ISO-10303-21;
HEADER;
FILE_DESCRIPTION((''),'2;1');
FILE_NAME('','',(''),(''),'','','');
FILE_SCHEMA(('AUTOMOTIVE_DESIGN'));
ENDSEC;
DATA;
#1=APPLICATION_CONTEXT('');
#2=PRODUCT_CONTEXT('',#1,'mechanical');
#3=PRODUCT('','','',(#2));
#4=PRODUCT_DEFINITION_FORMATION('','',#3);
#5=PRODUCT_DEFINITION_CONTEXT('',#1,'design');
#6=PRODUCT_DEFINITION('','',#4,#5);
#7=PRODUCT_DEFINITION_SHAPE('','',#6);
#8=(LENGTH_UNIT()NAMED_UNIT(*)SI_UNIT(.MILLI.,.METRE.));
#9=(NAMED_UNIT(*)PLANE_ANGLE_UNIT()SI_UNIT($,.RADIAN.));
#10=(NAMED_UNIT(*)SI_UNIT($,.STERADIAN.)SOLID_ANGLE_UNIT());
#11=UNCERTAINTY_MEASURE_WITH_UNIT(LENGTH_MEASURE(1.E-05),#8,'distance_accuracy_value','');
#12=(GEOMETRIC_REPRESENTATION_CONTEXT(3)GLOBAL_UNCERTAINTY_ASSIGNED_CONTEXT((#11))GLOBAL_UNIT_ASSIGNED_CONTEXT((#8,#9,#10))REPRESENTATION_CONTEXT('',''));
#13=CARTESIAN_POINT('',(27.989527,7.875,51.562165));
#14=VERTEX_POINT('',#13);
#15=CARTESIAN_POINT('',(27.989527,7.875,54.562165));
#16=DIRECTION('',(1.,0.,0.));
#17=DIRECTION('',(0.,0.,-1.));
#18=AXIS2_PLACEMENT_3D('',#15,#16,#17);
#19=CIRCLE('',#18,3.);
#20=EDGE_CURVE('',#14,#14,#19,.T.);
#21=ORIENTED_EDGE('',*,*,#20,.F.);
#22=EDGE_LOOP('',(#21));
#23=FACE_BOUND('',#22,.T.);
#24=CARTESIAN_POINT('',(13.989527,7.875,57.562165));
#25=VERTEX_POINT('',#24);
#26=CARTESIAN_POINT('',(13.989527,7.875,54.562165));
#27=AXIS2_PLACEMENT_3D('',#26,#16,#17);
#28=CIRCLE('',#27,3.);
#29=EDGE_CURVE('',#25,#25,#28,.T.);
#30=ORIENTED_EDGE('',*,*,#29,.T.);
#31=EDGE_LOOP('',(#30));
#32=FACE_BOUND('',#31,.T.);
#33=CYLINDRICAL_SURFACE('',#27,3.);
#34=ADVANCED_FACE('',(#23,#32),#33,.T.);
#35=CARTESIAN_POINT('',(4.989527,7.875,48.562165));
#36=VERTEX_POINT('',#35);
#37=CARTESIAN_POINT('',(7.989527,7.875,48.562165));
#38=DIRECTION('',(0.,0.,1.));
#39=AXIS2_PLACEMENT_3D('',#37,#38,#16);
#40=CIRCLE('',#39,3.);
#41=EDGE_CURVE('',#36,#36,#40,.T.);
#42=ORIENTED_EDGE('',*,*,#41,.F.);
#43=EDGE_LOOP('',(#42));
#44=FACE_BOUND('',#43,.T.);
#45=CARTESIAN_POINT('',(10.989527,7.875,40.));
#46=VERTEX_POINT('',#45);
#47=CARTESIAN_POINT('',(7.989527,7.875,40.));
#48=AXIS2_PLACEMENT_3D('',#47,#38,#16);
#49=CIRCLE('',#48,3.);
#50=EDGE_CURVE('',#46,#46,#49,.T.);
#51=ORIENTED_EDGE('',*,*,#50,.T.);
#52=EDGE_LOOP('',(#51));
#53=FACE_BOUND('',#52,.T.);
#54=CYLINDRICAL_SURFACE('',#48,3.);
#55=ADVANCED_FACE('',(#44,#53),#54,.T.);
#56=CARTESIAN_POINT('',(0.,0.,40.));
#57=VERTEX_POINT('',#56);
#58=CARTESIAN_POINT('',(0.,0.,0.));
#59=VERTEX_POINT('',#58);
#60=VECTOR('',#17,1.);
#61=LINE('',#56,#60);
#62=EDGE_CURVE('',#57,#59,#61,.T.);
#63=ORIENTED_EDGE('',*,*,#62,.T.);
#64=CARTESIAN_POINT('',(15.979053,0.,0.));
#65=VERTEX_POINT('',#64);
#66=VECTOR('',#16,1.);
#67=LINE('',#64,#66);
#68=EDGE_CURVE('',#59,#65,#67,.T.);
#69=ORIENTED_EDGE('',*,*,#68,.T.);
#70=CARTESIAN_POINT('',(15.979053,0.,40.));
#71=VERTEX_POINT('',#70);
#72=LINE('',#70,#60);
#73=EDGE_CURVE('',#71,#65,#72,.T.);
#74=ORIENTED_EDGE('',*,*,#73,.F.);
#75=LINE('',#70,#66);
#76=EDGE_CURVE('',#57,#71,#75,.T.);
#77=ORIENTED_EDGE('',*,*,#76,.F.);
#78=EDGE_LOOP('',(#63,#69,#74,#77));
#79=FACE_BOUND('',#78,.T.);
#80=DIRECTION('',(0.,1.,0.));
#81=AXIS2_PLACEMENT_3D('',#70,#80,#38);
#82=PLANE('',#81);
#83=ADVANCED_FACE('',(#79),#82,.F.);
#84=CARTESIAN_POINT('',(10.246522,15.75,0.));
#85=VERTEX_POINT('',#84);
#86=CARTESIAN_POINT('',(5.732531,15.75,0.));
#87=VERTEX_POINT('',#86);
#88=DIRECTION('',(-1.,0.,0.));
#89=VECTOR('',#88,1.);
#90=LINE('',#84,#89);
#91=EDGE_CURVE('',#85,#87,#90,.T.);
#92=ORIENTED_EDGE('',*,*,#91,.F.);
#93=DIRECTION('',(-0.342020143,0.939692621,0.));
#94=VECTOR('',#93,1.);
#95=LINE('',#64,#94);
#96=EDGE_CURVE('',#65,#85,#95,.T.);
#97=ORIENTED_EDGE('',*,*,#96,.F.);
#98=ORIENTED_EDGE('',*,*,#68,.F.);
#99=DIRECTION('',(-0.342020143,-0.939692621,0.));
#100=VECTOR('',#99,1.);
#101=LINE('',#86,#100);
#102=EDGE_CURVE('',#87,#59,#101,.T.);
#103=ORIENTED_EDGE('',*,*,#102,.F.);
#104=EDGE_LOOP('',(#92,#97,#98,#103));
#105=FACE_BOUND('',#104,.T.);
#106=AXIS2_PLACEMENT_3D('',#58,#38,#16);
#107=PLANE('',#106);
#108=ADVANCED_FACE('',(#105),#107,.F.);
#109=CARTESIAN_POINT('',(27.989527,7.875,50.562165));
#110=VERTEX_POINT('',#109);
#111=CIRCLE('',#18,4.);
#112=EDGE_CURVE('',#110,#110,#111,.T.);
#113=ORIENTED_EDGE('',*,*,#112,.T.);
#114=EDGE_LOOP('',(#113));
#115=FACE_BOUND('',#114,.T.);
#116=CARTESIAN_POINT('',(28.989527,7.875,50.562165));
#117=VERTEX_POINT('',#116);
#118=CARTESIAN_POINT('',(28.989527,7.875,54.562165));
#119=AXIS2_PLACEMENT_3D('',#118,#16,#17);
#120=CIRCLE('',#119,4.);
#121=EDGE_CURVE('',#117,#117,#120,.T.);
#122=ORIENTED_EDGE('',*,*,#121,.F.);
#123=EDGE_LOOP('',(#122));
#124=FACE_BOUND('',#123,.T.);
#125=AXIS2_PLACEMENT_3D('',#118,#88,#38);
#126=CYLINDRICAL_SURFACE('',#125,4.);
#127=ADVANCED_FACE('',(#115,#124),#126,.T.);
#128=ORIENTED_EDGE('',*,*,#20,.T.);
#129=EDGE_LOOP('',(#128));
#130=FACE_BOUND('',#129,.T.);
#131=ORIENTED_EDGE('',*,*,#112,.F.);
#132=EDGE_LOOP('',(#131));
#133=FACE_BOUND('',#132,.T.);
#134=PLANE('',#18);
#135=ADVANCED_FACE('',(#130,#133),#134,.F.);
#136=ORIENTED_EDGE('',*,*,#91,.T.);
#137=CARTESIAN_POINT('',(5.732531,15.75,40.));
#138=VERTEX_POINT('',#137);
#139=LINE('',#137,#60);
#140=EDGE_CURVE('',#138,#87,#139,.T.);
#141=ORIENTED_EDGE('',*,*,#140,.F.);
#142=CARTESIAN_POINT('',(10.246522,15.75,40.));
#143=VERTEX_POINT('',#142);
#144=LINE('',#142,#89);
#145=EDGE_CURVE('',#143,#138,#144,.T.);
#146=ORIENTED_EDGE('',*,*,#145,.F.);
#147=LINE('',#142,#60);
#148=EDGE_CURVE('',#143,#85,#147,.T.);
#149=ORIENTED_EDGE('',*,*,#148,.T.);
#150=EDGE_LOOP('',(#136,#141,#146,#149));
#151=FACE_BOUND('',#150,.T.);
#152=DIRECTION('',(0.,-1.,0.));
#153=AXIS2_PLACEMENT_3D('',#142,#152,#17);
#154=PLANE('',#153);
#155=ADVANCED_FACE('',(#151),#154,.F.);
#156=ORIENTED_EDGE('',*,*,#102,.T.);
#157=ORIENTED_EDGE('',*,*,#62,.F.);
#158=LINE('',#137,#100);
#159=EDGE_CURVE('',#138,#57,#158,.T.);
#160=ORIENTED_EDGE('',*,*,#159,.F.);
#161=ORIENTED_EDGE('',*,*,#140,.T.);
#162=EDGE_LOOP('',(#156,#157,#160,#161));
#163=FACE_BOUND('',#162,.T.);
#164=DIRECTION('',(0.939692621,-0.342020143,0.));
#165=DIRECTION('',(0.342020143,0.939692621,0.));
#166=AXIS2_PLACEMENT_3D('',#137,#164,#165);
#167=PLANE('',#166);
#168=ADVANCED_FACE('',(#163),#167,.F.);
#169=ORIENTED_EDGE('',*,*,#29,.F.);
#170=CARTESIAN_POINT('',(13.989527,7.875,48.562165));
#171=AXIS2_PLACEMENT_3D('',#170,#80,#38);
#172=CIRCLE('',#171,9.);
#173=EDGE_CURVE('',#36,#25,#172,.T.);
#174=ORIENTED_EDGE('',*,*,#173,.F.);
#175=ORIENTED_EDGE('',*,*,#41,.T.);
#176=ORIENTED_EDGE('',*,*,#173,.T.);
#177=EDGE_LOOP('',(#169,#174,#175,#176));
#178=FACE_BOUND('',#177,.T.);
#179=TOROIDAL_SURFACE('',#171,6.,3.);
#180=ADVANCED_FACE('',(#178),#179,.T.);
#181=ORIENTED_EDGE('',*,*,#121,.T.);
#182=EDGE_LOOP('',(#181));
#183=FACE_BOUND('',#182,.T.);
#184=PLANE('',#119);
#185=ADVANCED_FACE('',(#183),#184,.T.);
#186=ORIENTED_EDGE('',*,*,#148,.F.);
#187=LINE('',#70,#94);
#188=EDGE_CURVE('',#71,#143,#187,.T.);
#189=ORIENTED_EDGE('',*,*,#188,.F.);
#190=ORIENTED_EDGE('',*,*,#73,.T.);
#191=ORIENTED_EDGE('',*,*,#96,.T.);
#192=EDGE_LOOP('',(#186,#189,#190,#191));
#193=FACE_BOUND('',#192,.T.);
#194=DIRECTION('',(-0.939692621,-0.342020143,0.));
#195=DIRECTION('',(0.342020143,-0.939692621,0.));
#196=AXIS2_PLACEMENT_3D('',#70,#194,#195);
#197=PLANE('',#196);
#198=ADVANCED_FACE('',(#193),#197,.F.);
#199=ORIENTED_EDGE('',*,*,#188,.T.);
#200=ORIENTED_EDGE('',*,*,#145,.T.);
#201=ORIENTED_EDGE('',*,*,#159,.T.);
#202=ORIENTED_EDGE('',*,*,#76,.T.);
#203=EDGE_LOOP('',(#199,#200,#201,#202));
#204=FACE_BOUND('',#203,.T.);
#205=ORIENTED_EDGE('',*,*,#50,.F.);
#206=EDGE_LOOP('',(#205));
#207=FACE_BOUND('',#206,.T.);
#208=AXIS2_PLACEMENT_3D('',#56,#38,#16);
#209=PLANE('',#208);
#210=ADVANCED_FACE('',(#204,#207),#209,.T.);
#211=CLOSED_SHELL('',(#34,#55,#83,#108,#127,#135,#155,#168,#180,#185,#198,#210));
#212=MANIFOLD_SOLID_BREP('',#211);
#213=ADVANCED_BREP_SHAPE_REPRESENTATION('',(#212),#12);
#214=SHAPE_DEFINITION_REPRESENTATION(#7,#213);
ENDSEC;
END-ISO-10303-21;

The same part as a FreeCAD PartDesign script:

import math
import FreeCAD as App
import Part
import Sketcher

V = App.Vector
Q = App.Units.Quantity


def add_polygon(sketch, points):
    """Adds a closed chain of lines whose ends are joined by coincident constraints."""
    first, n = sketch.GeometryCount, len(points)
    for a, b in zip(points, points[1:] + points[:1]):
        sketch.addGeometry(Part.LineSegment(App.Vector(*a, 0), App.Vector(*b, 0)), False)
    for i in range(n):
        sketch.addConstraint(Sketcher.Constraint("Coincident", first + i, 2, first + (i + 1) % n, 1))

doc = App.newDocument("Part")
body = doc.addObject("PartDesign::Body", "Body")

# Sketch on XY plane
sketch1 = body.newObject("Sketcher::SketchObject", "Sketch")
sketch1.AttachmentSupport = (doc.getObject("XY_Plane"), [""])
sketch1.MapMode = "FlatFace"
add_polygon(sketch1, [(16, 0), (10.2, 15.8), (5.7, 15.8), (0, 0)])  # lines 0-3
sketch1.addConstraint([
    Sketcher.Constraint("Horizontal", 1),
    Sketcher.Constraint("Horizontal", 3),
    Sketcher.Constraint("Coincident", 2, 2, -1, 1),
    Sketcher.Constraint("Equal", 0, 2),
    Sketcher.Constraint("Angle", 0, Q("110 deg")),
    Sketcher.Constraint("DistanceY", -1, 1, 0, 2, Q("15.75 mm")),
    Sketcher.Constraint("DistanceX", 1, 2, 1, 1, Q("4.513991 mm")),
])
pad1 = body.newObject("PartDesign::Pad", "Pad")
pad1.Profile = sketch1
pad1.Length = 40

# Sketch on YZ plane
sketch2 = body.newObject("Sketcher::SketchObject", "Sketch001")
sketch2.AttachmentSupport = (doc.getObject("YZ_Plane"), [""])
sketch2.MapMode = "FlatFace"
sketch2.AttachmentOffset = App.Placement(V(0, 0, 27.989527), App.Rotation())
sketch2.addGeometry(Part.Circle(V(7.9, 54.6, 0), V(0, 0, 1), 3), False)
sketch2.addConstraint([
    Sketcher.Constraint("Diameter", 0, Q("6 mm")),
    Sketcher.Constraint("DistanceX", -1, 1, 0, 3, Q("7.875 mm")),
    Sketcher.Constraint("DistanceY", -1, 1, 0, 3, Q("54.562165 mm")),
])

# Sketch on XZ plane
sketch3 = body.newObject("Sketcher::SketchObject", "Sketch002")
sketch3.AttachmentSupport = (doc.getObject("XZ_Plane"), [""])
sketch3.MapMode = "FlatFace"
sketch3.AttachmentOffset = App.Placement(V(0, 0, -7.875), App.Rotation())
sketch3.addGeometry([
    Part.LineSegment(V(8, 40, 0), V(8, 49, 0)),
    Part.ArcOfCircle(Part.Circle(V(14, 49, 0), V(0, 0, 1), 6), math.radians(90), math.radians(180)),
    Part.LineSegment(V(14, 55, 0), V(28, 55, 0)),
], False)
sketch3.addConstraint([
    Sketcher.Constraint("Tangent", 0, 2, 1, 2),
    Sketcher.Constraint("Tangent", 1, 1, 2, 1),
    Sketcher.Constraint("Vertical", 0),
    Sketcher.Constraint("Horizontal", 2),
    Sketcher.Constraint("Radius", 1, Q("6 mm")),
    Sketcher.Constraint("DistanceX", 2, 1, 2, 2, Q("14 mm")),
    Sketcher.Constraint("DistanceY", -1, 1, 0, 1, Q("40 mm")),
    Sketcher.Constraint("DistanceY", 0, 1, 0, 2, Q("8.562165 mm")),
    Sketcher.Constraint("DistanceX", -1, 1, 1, 3, Q("13.989527 mm")),
])
doc.recompute()

additivepipe = body.newObject("PartDesign::AdditivePipe", "AdditivePipe")
additivepipe.Profile = sketch2
additivepipe.Spine = (sketch3, ["Edge1", "Edge2", "Edge3"])

# Sketch on YZ plane
sketch4 = body.newObject("Sketcher::SketchObject", "Sketch003")
sketch4.AttachmentSupport = (doc.getObject("YZ_Plane"), [""])
sketch4.MapMode = "FlatFace"
sketch4.AttachmentOffset = App.Placement(V(0, 0, 27.989527), App.Rotation())
sketch4.addGeometry(Part.Circle(V(7.9, 54.6, 0), V(0, 0, 1), 4), False)
sketch4.addConstraint([
    Sketcher.Constraint("Diameter", 0, Q("8 mm")),
    Sketcher.Constraint("DistanceX", -1, 1, 0, 3, Q("7.875 mm")),
    Sketcher.Constraint("DistanceY", -1, 1, 0, 3, Q("54.562165 mm")),
])
pad2 = body.newObject("PartDesign::Pad", "Pad001")
pad2.Profile = sketch4
pad2.Length = 1

doc.recompute()
